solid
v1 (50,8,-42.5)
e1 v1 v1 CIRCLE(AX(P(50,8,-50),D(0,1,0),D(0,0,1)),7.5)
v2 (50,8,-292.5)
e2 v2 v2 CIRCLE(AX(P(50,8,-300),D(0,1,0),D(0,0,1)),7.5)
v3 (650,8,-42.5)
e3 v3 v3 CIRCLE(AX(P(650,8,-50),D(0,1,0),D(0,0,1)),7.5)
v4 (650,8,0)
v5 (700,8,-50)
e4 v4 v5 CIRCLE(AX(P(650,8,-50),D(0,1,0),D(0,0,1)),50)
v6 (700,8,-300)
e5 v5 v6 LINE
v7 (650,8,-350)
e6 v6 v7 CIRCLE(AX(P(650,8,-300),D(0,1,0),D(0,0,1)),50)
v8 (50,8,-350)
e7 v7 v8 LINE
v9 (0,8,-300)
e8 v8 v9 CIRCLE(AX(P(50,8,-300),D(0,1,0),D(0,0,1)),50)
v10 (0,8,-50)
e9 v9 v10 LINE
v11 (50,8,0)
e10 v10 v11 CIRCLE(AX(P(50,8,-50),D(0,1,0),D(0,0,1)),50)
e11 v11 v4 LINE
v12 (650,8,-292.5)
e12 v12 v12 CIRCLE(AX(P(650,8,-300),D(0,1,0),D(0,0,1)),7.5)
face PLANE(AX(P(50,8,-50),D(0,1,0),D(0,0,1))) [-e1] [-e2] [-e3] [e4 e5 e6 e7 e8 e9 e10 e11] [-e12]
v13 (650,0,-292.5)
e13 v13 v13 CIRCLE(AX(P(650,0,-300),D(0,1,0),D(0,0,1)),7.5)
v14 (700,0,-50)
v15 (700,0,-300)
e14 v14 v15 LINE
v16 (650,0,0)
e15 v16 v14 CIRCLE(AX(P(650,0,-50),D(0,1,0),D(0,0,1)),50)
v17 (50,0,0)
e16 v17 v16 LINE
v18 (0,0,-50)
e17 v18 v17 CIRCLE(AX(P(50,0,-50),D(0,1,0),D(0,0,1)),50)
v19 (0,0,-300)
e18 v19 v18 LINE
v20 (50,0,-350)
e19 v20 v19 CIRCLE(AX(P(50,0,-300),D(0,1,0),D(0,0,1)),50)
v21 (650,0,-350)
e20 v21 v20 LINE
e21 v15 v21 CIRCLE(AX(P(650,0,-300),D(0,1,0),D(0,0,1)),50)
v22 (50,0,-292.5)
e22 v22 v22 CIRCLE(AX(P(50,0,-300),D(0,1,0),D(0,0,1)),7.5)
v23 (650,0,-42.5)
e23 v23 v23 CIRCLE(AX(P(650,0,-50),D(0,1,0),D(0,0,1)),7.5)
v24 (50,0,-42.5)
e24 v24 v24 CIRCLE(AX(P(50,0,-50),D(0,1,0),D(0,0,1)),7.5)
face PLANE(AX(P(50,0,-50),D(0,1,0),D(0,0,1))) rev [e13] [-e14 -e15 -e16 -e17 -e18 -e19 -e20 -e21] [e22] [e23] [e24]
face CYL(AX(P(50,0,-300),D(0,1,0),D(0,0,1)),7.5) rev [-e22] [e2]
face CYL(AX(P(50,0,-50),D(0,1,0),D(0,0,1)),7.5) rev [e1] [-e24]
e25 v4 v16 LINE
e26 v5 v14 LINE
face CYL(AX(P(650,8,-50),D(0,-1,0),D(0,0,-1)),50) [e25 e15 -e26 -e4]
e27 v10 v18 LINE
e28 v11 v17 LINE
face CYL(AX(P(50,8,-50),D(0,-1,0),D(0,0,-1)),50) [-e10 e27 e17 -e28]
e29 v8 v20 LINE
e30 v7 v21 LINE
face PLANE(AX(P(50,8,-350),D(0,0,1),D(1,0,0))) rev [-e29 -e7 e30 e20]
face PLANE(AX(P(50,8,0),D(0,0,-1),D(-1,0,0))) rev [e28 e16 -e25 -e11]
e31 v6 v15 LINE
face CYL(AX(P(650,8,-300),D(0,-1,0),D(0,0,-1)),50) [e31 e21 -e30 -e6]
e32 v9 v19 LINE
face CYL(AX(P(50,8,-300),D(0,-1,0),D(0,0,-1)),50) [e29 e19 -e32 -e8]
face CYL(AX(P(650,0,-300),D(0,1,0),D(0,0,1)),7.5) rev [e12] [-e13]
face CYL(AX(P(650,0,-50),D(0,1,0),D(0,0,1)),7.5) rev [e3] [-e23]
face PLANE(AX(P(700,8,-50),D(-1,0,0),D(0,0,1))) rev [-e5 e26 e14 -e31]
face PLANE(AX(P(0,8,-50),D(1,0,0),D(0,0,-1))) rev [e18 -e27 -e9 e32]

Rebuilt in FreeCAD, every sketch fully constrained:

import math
import FreeCAD as App
import Part
import Sketcher
from FreeCAD import Vector
Q = App.Units.Quantity

doc = App.newDocument("Part")
body = doc.addObject("PartDesign::Body", "Body")

sketch1 = doc.addObject("Sketcher::SketchObject", "Sketch")
body.addObject(sketch1)
sketch1.AttachmentSupport = (doc.XZ_Plane, [""])
sketch1.MapMode = "FlatFace"
sketch1.addGeometry(Part.LineSegment(Vector(50, 0, 0), Vector(650, 0, 0)), False)
sketch1.addGeometry(Part.ArcOfCircle(Part.Circle(Vector(650, -50, 0), Vector(0, 0, 1), 50), math.radians(0), math.radians(90)), False)
sketch1.addGeometry(Part.LineSegment(Vector(700, -50, 0), Vector(700, -300, 0)), False)
sketch1.addGeometry(Part.ArcOfCircle(Part.Circle(Vector(650, -300, 0), Vector(0, 0, 1), 50), math.radians(-90), math.radians(0)), False)
sketch1.addGeometry(Part.LineSegment(Vector(650, -350, 0), Vector(50, -350, 0)), False)
sketch1.addGeometry(Part.ArcOfCircle(Part.Circle(Vector(50, -300, 0), Vector(0, 0, 1), 50), math.radians(-180), math.radians(-90)), False)
sketch1.addGeometry(Part.LineSegment(Vector(0, -300, 0), Vector(0, -50, 0)), False)
sketch1.addGeometry(Part.ArcOfCircle(Part.Circle(Vector(50, -50, 0), Vector(0, 0, 1), 50), math.radians(90), math.radians(180)), False)
sketch1.addConstraint(Sketcher.Constraint("Tangent", 0, 2, 1, 2))
sketch1.addConstraint(Sketcher.Constraint("Tangent", 1, 1, 2, 1))
sketch1.addConstraint(Sketcher.Constraint("Tangent", 2, 2, 3, 2))
sketch1.addConstraint(Sketcher.Constraint("Tangent", 3, 1, 4, 1))
sketch1.addConstraint(Sketcher.Constraint("Tangent", 4, 2, 5, 2))
sketch1.addConstraint(Sketcher.Constraint("Tangent", 5, 1, 6, 1))
sketch1.addConstraint(Sketcher.Constraint("Tangent", 6, 2, 7, 2))
sketch1.addConstraint(Sketcher.Constraint("Tangent", 7, 1, 0, 1))
sketch1.addConstraint(Sketcher.Constraint("Horizontal", 0))
sketch1.addConstraint(Sketcher.Constraint("Vertical", 2))
sketch1.addConstraint(Sketcher.Constraint("Horizontal", 4))
sketch1.addConstraint(Sketcher.Constraint("Vertical", 6))
sketch1.addConstraint(Sketcher.Constraint("Equal", 1, 3))
sketch1.addConstraint(Sketcher.Constraint("Equal", 3, 5))
sketch1.addConstraint(Sketcher.Constraint("Equal", 5, 7))
sketch1.addConstraint(Sketcher.Constraint("PointOnObject", 0, 2, -1))
sketch1.addConstraint(Sketcher.Constraint("PointOnObject", 5, 1, -2))
sketch1.addConstraint(Sketcher.Constraint("Radius", 1, Q("50 mm")))
sketch1.addConstraint(Sketcher.Constraint("DistanceX", 0, 1, 0, 2, Q("600 mm")))
sketch1.addConstraint(Sketcher.Constraint("DistanceY", 2, 2, 2, 1, Q("250 mm")))
pad1 = doc.addObject("PartDesign::Pad", "Pad")
body.addObject(pad1)
pad1.Profile = sketch1
pad1.Length = 8
pad1.Reversed = True

sketch2 = doc.addObject("Sketcher::SketchObject", "Sketch001")
body.addObject(sketch2)
sketch2.AttachmentSupport = (doc.XZ_Plane, [""])
sketch2.MapMode = "FlatFace"
sketch2.AttachmentOffset = App.Placement(Vector(0, 0, -8), App.Rotation())
sketch2.addGeometry(Part.Circle(Vector(50, -50, 0), Vector(0, 0, 1), 8), False)
sketch2.addGeometry(Part.Circle(Vector(50, -300, 0), Vector(0, 0, 1), 8), False)
sketch2.addGeometry(Part.Circle(Vector(650, -50, 0), Vector(0, 0, 1), 8), False)
sketch2.addGeometry(Part.Circle(Vector(650, -300, 0), Vector(0, 0, 1), 8), False)
sketch2.addConstraint(Sketcher.Constraint("Equal", 0, 1))
sketch2.addConstraint(Sketcher.Constraint("Equal", 1, 2))
sketch2.addConstraint(Sketcher.Constraint("Equal", 2, 3))
sketch2.addConstraint(Sketcher.Constraint("Horizontal", 0, 3, 2, 3))
sketch2.addConstraint(Sketcher.Constraint("Horizontal", 1, 3, 3, 3))
sketch2.addConstraint(Sketcher.Constraint("Vertical", 0, 3, 1, 3))
sketch2.addConstraint(Sketcher.Constraint("Vertical", 2, 3, 3, 3))
sketch2.addConstraint(Sketcher.Constraint("Diameter", 0, Q("15 mm")))
sketch2.addConstraint(Sketcher.Constraint("DistanceX", -1, 1, 0, 3, Q("50 mm")))
sketch2.addConstraint(Sketcher.Constraint("DistanceY", 0, 3, -1, 1, Q("50 mm")))
sketch2.addConstraint(Sketcher.Constraint("DistanceY", 1, 3, -1, 1, Q("300 mm")))
sketch2.addConstraint(Sketcher.Constraint("DistanceX", -1, 1, 2, 3, Q("650 mm")))
pocket1 = doc.addObject("PartDesign::Pocket", "Pocket")
body.addObject(pocket1)
pocket1.Profile = sketch2
pocket1.Length = 8
pocket1.Reversed = True

doc.recompute()
